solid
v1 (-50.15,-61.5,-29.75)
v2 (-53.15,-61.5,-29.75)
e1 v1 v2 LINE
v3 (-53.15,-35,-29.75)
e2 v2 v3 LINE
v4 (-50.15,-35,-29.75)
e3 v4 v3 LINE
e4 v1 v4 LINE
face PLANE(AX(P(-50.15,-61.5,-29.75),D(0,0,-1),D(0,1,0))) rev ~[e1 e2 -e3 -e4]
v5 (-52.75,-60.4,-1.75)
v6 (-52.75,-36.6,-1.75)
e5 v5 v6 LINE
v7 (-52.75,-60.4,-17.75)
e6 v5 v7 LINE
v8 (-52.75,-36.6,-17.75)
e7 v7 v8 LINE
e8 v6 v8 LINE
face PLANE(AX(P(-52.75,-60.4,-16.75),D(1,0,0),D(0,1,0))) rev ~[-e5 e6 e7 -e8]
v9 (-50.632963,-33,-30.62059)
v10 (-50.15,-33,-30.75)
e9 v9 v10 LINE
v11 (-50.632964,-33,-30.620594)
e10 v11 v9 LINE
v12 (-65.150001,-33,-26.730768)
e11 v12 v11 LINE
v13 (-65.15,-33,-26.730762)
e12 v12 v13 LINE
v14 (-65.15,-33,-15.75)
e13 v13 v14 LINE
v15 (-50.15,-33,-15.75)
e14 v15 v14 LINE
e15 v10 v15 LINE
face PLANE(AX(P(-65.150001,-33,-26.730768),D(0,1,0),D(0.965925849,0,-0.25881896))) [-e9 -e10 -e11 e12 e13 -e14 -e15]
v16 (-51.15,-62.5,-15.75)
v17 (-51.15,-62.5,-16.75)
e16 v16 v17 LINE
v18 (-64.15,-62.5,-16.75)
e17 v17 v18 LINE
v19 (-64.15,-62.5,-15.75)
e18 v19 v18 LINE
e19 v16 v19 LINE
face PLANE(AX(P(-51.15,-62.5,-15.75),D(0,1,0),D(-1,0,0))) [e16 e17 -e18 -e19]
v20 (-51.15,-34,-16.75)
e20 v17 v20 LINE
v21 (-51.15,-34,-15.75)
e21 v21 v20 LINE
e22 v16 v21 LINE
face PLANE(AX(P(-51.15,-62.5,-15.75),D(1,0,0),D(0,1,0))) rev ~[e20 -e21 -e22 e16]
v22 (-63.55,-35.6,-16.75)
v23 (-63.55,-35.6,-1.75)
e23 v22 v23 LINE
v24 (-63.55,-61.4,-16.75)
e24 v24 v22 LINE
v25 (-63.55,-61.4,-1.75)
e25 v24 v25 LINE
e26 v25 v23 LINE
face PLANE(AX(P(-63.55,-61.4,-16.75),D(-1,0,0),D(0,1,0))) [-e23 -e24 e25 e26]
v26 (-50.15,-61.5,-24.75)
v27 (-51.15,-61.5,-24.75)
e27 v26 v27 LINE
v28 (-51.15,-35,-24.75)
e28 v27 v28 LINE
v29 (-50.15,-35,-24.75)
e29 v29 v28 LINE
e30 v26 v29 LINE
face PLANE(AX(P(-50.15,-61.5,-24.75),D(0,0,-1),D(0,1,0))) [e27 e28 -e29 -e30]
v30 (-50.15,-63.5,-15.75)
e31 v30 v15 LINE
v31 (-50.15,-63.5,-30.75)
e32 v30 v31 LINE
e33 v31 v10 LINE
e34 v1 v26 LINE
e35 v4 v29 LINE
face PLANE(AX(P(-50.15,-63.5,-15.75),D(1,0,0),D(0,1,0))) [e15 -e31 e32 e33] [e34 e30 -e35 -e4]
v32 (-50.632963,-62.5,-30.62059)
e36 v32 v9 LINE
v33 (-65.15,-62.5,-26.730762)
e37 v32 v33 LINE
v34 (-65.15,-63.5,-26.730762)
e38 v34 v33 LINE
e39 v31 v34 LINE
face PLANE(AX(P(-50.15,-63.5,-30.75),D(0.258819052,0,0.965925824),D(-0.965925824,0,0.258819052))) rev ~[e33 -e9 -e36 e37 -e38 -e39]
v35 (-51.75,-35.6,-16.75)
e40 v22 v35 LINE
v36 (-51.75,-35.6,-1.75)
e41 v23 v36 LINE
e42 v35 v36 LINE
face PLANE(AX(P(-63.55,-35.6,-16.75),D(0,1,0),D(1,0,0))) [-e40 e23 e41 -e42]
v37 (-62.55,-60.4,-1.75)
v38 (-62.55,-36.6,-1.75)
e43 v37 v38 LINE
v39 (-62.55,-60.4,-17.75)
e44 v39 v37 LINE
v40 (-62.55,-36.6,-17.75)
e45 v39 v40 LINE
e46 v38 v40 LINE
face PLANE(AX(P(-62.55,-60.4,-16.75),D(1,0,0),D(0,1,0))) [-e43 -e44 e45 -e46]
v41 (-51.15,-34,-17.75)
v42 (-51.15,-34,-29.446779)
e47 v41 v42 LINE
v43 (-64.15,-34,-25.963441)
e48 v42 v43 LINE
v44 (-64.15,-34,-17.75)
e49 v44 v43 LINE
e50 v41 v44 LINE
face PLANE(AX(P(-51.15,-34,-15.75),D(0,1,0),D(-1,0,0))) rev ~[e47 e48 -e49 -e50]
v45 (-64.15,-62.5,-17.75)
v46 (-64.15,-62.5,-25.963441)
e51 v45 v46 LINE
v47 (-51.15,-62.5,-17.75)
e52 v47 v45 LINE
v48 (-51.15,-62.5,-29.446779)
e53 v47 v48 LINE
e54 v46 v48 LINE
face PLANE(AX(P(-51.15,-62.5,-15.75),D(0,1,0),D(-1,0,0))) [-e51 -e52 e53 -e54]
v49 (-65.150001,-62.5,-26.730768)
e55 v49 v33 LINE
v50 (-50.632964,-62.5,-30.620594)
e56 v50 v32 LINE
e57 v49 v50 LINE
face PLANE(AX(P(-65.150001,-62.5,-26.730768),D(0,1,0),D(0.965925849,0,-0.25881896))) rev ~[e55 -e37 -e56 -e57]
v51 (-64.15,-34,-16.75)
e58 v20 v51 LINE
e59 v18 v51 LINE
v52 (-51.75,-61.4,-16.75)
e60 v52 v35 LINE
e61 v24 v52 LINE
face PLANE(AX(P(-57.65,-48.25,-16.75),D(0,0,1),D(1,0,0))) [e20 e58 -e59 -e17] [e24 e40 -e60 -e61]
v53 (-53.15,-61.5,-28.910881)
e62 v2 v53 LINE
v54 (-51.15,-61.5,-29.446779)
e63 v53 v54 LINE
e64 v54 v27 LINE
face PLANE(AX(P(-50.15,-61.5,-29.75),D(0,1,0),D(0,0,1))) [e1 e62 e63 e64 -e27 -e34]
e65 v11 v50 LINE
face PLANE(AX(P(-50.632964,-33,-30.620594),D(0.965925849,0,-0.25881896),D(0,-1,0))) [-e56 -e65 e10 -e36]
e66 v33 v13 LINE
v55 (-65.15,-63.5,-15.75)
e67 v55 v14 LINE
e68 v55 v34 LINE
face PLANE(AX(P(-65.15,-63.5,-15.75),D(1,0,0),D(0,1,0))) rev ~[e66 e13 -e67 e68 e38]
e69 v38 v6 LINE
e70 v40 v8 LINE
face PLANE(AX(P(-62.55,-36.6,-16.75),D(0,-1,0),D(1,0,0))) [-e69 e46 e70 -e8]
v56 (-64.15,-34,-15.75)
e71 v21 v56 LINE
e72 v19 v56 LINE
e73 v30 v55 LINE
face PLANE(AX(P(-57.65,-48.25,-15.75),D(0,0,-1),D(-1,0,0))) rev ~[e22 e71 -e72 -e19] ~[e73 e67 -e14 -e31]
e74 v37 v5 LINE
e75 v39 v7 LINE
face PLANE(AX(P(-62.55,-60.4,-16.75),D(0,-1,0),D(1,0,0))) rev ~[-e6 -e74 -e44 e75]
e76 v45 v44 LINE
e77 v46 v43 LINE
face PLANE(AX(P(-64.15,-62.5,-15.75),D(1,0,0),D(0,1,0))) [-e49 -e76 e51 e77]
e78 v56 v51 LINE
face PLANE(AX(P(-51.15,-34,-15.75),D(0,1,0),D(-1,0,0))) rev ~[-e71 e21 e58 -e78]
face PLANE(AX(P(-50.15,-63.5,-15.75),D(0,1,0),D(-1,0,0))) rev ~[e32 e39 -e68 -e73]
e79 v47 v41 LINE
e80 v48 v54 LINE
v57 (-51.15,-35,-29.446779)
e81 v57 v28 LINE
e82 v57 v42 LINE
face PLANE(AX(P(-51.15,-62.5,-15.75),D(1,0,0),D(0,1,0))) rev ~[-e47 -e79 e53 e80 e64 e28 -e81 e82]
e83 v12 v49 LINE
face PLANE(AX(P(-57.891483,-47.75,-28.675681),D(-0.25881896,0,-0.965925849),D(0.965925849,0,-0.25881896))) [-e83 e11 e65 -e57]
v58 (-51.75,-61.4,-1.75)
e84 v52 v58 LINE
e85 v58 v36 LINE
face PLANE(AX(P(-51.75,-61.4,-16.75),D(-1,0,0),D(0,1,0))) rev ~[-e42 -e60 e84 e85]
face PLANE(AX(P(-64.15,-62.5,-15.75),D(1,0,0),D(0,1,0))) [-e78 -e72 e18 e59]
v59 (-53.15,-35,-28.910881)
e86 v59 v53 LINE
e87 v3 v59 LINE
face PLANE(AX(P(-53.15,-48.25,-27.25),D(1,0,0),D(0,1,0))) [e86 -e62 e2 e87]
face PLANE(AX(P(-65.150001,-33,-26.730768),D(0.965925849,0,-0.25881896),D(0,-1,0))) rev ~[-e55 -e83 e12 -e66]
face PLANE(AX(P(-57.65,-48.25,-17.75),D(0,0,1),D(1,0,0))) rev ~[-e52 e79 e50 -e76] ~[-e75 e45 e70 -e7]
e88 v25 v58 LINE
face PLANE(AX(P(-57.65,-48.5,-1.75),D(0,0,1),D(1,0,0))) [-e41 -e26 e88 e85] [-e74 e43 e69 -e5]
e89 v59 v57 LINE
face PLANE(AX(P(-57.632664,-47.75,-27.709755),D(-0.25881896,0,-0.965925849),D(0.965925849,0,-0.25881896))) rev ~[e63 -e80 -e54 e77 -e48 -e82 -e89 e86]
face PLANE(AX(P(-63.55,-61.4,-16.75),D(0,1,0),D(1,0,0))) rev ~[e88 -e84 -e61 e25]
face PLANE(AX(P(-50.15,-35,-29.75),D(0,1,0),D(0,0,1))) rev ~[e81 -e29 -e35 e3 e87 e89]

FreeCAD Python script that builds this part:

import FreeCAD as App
import Part
import Sketcher

V = App.Vector
Q = App.Units.Quantity


def add_polygon(sketch, points):
    """Adds a closed chain of lines whose ends are joined by coincident constraints."""
    first, n = sketch.GeometryCount, len(points)
    for a, b in zip(points, points[1:] + points[:1]):
        sketch.addGeometry(Part.LineSegment(App.Vector(*a, 0), App.Vector(*b, 0)), False)
    for i in range(n):
        sketch.addConstraint(Sketcher.Constraint("Coincident", first + i, 2, first + (i + 1) % n, 1))

doc = App.newDocument("Part")
params = doc.addObject("Spreadsheet::Sheet", "Params")
for row, (alias, value) in enumerate([
    ("sketch1_width", "11.8 mm"),
    ("sketch1_width2", "9.8 mm"),
    ("sketch1_height", "25.8 mm"),
    ("sketch1_height2", "23.8 mm"),
    ("pad1_length", "15 mm"),
    ("sketch2_width", "15 mm"),
    ("sketch2_width2", "9.8 mm"),
    ("sketch2_height", "30.5 mm"),
    ("sketch2_height2", "23.8 mm"),
    ("pad2_length", "1 mm"),
    ("sketch3_width", "15 mm"),
    ("sketch3_width2", "13 mm"),
    ("sketch3_height", "30.5 mm"),
    ("sketch3_height2", "28.5 mm"),
    ("pad3_length", "15 mm"),
    ("sketch4_width", "15 mm"),
    ("sketch5_height", "29.5 mm"),
    ("pad4_length", "1 mm"),
    ("sketch6_height", "5 mm"),
    ("sketch6_width", "26.5 mm"),
    ("pocket2_length", "3 mm"),
], start=1):
    params.set(f"A{row}", alias)
    params.set(f"B{row}", "=" + value)
    params.setAlias(f"B{row}", alias)

body = doc.addObject("PartDesign::Body", "Body")

sketch1 = doc.addObject("Sketcher::SketchObject", "Sketch")
body.addObject(sketch1)
sketch1.AttachmentSupport = (doc.XY_Plane, [""])
sketch1.MapMode = "FlatFace"
add_polygon(sketch1, [(-64, -4), (-64, -29), (-52, -29), (-52, -4)])
add_polygon(sketch1, [(-53, -28), (-63, -28), (-63, -5), (-53, -5)])
sketch1.addConstraint([
    Sketcher.Constraint("Vertical", 0),
    Sketcher.Constraint("Horizontal", 1),
    Sketcher.Constraint("Vertical", 2),
    Sketcher.Constraint("Horizontal", 3),
    Sketcher.Constraint("Horizontal", 4),
    Sketcher.Constraint("Vertical", 5),
    Sketcher.Constraint("Horizontal", 6),
    Sketcher.Constraint("Vertical", 7),
    Sketcher.Constraint("DistanceX", 1, 1, 1, 2, 11.8),
    Sketcher.Constraint("DistanceX", 4, 2, 4, 1, 9.8),
    Sketcher.Constraint("DistanceY", 0, 2, 0, 1, 25.8),
    Sketcher.Constraint("DistanceY", 5, 1, 5, 2, 23.8),
    Sketcher.Constraint("DistanceX", 0, 2, 4, 2, 1.0),
    Sketcher.Constraint("DistanceY", 0, 2, 4, 2, 1.0),
    Sketcher.Constraint("DistanceY", 0, 2, -1, 1, 29.4),
    Sketcher.Constraint("DistanceX", 0, 2, -1, 1, 63.55),
])
sketch1.setExpression("Constraints[16]", "Params.sketch1_width")
sketch1.setExpression("Constraints[17]", "Params.sketch1_width2")
sketch1.setExpression("Constraints[18]", "Params.sketch1_height")
sketch1.setExpression("Constraints[19]", "Params.sketch1_height2")
pad1 = doc.addObject("PartDesign::Pad", "Pad")
body.addObject(pad1)
pad1.Profile = sketch1
pad1.setExpression("Length", "Params.pad1_length")

sketch2 = doc.addObject("Sketcher::SketchObject", "Sketch001")
body.addObject(sketch2)
sketch2.AttachmentSupport = (doc.XY_Plane, [""])
sketch2.MapMode = "FlatFace"
add_polygon(sketch2, [(-65, -1), (-65, -32), (-50, -32), (-50, -1)])
add_polygon(sketch2, [(-53, -28), (-63, -28), (-63, -5), (-53, -5)])
sketch2.addConstraint([
    Sketcher.Constraint("Vertical", 0),
    Sketcher.Constraint("Horizontal", 1),
    Sketcher.Constraint("Vertical", 2),
    Sketcher.Constraint("Horizontal", 3),
    Sketcher.Constraint("Horizontal", 4),
    Sketcher.Constraint("Vertical", 5),
    Sketcher.Constraint("Horizontal", 6),
    Sketcher.Constraint("Vertical", 7),
    Sketcher.Constraint("DistanceX", 1, 1, 1, 2, 15.0),
    Sketcher.Constraint("DistanceX", 4, 2, 4, 1, 9.8),
    Sketcher.Constraint("DistanceY", 0, 2, 0, 1, 30.5),
    Sketcher.Constraint("DistanceY", 5, 1, 5, 2, 23.8),
    Sketcher.Constraint("DistanceY", 2, 2, -1, 1, 1.0),
    Sketcher.Constraint("DistanceY", 4, 2, -1, 1, 28.4),
    Sketcher.Constraint("DistanceX", 0, 2, 4, 2, 2.6),
    Sketcher.Constraint("DistanceX", 0, 2, -1, 1, 65.15),
])
sketch2.setExpression("Constraints[16]", "Params.sketch2_width")
sketch2.setExpression("Constraints[17]", "Params.sketch2_width2")
sketch2.setExpression("Constraints[18]", "Params.sketch2_height")
sketch2.setExpression("Constraints[19]", "Params.sketch2_height2")
pad2 = doc.addObject("PartDesign::Pad", "Pad001")
body.addObject(pad2)
pad2.Profile = sketch2
pad2.setExpression("Length", "Params.pad2_length")
pad2.Reversed = True

sketch3 = doc.addObject("Sketcher::SketchObject", "Sketch002")
body.addObject(sketch3)
sketch3.AttachmentSupport = (doc.XY_Plane, [""])
sketch3.MapMode = "FlatFace"
sketch3.AttachmentOffset = App.Placement(V(0, 0, 1), App.Rotation())
add_polygon(sketch3, [(-50, -1), (-50, -32), (-65, -32), (-65, -1)])
add_polygon(sketch3, [(-64, -30), (-51, -30), (-51, -2), (-64, -2)])
sketch3.addConstraint([
    Sketcher.Constraint("Vertical", 0),
    Sketcher.Constraint("Horizontal", 1),
    Sketcher.Constraint("Vertical", 2),
    Sketcher.Constraint("Horizontal", 3),
    Sketcher.Constraint("Horizontal", 4),
    Sketcher.Constraint("Vertical", 5),
    Sketcher.Constraint("Horizontal", 6),
    Sketcher.Constraint("Vertical", 7),
    Sketcher.Constraint("DistanceX", 1, 2, 1, 1, 15.0),
    Sketcher.Constraint("DistanceX", 4, 1, 4, 2, 13.0),
    Sketcher.Constraint("DistanceY", 0, 2, 0, 1, 30.5),
    Sketcher.Constraint("DistanceY", 5, 1, 5, 2, 28.5),
    Sketcher.Constraint("DistanceY", 2, 2, -1, 1, 1.0),
    Sketcher.Constraint("DistanceY", 5, 2, -1, 1, 2.0),
    Sketcher.Constraint("DistanceX", 4, 2, 0, 2, 1.0),
    Sketcher.Constraint("DistanceX", 0, 2, -1, 1, 50.15),
])
sketch3.setExpression("Constraints[16]", "Params.sketch3_width")
sketch3.setExpression("Constraints[17]", "Params.sketch3_width2")
sketch3.setExpression("Constraints[18]", "Params.sketch3_height")
sketch3.setExpression("Constraints[19]", "Params.sketch3_height2")
pad3 = doc.addObject("PartDesign::Pad", "Pad002")
body.addObject(pad3)
pad3.Profile = sketch3
pad3.setExpression("Length", "Params.pad3_length")
pad3.Reversed = True

sketch4 = doc.addObject("Sketcher::SketchObject", "Sketch003")
body.addObject(sketch4)
sketch4.AttachmentSupport = (doc.XZ_Plane, [""])
sketch4.MapMode = "FlatFace"
sketch4.AttachmentOffset = App.Placement(V(0, 0, 31.5), App.Rotation())
add_polygon(sketch4, [(-50.1, -14), (-65.2, -10), (-65.2, -14)])
sketch4.addConstraint([
    Sketcher.Constraint("Vertical", 1),
    Sketcher.Constraint("Horizontal", 2),
    Sketcher.Constraint("DistanceX", 2, 1, 2, 2, 15.0),
    Sketcher.Constraint("Angle", 0, Q("165 deg")),
    Sketcher.Constraint("DistanceY", 1, 2, -1, 1, 14.0),
    Sketcher.Constraint("DistanceX", 0, 2, -1, 1, 65.15),
])
sketch4.setExpression("Constraints[5]", "Params.sketch4_width")
pocket1 = doc.addObject("PartDesign::Pocket", "Pocket")
body.addObject(pocket1)
pocket1.Profile = sketch4
pocket1.Type = "ThroughAll"

sketch5 = doc.addObject("Sketcher::SketchObject", "Sketch004")
body.addObject(sketch5)
sketch5.Placement = App.Placement(V(-6.859413, 0, -25.599678), App.Rotation(V(0.965925849, 0, -0.25881896), V(0, -1, 0), V(-0.25881896, 0, -0.965925849), "ZXY"))
add_polygon(sketch5, [(-60, 30), (-60, 1), (-45, 1), (-45, 30)])
sketch5.addConstraint([
    Sketcher.Constraint("Vertical", 0),
    Sketcher.Constraint("Horizontal", 1),
    Sketcher.Constraint("Vertical", 2),
    Sketcher.Constraint("Horizontal", 3),
    Sketcher.Constraint("DistanceY", 0, 2, 0, 1, 29.5),
    Sketcher.Constraint("DistanceY", -1, 1, 0, 2, 1.0),
    Sketcher.Constraint("DistanceX", 1, 1, 1, 2, 15.029142),
    Sketcher.Constraint("DistanceX", 0, 2, -1, 1, 60.346856),
])
sketch5.setExpression("Constraints[8]", "Params.sketch5_height")
pad4 = doc.addObject("PartDesign::Pad", "Pad003")
body.addObject(pad4)
pad4.Profile = sketch5
pad4.setExpression("Length", "Params.pad4_length")
pad4.Reversed = True

sketch6 = doc.addObject("Sketcher::SketchObject", "Sketch005")
body.addObject(sketch6)
sketch6.AttachmentSupport = (doc.YZ_Plane, [""])
sketch6.MapMode = "FlatFace"
sketch6.AttachmentOffset = App.Placement(V(0, 0, -50.15), App.Rotation())
add_polygon(sketch6, [(-30, -8), (-30, -13), (-3, -13), (-3, -8)])
sketch6.addConstraint([
    Sketcher.Constraint("Vertical", 0),
    Sketcher.Constraint("Horizontal", 1),
    Sketcher.Constraint("Vertical", 2),
    Sketcher.Constraint("Horizontal", 3),
    Sketcher.Constraint("DistanceY", 0, 2, 0, 1, 5.0),
    Sketcher.Constraint("DistanceX", 1, 1, 1, 2, 26.5),
    Sketcher.Constraint("DistanceY", 0, 2, -1, 1, 13.0),
    Sketcher.Constraint("DistanceX", 1, 2, -1, 1, 3.0),
])
sketch6.setExpression("Constraints[8]", "Params.sketch6_height")
sketch6.setExpression("Constraints[9]", "Params.sketch6_width")
pocket2 = doc.addObject("PartDesign::Pocket", "Pocket001")
body.addObject(pocket2)
pocket2.Profile = sketch6
pocket2.setExpression("Length", "Params.pocket2_length")
body2 = doc.addObject("PartDesign::Body", "Body001")
doc.recompute()

body.Placement = App.Placement(V(0, -32, -16.75), App.Rotation(V(0, 0, 1), 0))
boolean = doc.addObject("PartDesign::Boolean", "Boolean")
body2.addObject(boolean)
boolean.Type = "Fuse"
boolean.addObjects([body])

doc.recompute()
